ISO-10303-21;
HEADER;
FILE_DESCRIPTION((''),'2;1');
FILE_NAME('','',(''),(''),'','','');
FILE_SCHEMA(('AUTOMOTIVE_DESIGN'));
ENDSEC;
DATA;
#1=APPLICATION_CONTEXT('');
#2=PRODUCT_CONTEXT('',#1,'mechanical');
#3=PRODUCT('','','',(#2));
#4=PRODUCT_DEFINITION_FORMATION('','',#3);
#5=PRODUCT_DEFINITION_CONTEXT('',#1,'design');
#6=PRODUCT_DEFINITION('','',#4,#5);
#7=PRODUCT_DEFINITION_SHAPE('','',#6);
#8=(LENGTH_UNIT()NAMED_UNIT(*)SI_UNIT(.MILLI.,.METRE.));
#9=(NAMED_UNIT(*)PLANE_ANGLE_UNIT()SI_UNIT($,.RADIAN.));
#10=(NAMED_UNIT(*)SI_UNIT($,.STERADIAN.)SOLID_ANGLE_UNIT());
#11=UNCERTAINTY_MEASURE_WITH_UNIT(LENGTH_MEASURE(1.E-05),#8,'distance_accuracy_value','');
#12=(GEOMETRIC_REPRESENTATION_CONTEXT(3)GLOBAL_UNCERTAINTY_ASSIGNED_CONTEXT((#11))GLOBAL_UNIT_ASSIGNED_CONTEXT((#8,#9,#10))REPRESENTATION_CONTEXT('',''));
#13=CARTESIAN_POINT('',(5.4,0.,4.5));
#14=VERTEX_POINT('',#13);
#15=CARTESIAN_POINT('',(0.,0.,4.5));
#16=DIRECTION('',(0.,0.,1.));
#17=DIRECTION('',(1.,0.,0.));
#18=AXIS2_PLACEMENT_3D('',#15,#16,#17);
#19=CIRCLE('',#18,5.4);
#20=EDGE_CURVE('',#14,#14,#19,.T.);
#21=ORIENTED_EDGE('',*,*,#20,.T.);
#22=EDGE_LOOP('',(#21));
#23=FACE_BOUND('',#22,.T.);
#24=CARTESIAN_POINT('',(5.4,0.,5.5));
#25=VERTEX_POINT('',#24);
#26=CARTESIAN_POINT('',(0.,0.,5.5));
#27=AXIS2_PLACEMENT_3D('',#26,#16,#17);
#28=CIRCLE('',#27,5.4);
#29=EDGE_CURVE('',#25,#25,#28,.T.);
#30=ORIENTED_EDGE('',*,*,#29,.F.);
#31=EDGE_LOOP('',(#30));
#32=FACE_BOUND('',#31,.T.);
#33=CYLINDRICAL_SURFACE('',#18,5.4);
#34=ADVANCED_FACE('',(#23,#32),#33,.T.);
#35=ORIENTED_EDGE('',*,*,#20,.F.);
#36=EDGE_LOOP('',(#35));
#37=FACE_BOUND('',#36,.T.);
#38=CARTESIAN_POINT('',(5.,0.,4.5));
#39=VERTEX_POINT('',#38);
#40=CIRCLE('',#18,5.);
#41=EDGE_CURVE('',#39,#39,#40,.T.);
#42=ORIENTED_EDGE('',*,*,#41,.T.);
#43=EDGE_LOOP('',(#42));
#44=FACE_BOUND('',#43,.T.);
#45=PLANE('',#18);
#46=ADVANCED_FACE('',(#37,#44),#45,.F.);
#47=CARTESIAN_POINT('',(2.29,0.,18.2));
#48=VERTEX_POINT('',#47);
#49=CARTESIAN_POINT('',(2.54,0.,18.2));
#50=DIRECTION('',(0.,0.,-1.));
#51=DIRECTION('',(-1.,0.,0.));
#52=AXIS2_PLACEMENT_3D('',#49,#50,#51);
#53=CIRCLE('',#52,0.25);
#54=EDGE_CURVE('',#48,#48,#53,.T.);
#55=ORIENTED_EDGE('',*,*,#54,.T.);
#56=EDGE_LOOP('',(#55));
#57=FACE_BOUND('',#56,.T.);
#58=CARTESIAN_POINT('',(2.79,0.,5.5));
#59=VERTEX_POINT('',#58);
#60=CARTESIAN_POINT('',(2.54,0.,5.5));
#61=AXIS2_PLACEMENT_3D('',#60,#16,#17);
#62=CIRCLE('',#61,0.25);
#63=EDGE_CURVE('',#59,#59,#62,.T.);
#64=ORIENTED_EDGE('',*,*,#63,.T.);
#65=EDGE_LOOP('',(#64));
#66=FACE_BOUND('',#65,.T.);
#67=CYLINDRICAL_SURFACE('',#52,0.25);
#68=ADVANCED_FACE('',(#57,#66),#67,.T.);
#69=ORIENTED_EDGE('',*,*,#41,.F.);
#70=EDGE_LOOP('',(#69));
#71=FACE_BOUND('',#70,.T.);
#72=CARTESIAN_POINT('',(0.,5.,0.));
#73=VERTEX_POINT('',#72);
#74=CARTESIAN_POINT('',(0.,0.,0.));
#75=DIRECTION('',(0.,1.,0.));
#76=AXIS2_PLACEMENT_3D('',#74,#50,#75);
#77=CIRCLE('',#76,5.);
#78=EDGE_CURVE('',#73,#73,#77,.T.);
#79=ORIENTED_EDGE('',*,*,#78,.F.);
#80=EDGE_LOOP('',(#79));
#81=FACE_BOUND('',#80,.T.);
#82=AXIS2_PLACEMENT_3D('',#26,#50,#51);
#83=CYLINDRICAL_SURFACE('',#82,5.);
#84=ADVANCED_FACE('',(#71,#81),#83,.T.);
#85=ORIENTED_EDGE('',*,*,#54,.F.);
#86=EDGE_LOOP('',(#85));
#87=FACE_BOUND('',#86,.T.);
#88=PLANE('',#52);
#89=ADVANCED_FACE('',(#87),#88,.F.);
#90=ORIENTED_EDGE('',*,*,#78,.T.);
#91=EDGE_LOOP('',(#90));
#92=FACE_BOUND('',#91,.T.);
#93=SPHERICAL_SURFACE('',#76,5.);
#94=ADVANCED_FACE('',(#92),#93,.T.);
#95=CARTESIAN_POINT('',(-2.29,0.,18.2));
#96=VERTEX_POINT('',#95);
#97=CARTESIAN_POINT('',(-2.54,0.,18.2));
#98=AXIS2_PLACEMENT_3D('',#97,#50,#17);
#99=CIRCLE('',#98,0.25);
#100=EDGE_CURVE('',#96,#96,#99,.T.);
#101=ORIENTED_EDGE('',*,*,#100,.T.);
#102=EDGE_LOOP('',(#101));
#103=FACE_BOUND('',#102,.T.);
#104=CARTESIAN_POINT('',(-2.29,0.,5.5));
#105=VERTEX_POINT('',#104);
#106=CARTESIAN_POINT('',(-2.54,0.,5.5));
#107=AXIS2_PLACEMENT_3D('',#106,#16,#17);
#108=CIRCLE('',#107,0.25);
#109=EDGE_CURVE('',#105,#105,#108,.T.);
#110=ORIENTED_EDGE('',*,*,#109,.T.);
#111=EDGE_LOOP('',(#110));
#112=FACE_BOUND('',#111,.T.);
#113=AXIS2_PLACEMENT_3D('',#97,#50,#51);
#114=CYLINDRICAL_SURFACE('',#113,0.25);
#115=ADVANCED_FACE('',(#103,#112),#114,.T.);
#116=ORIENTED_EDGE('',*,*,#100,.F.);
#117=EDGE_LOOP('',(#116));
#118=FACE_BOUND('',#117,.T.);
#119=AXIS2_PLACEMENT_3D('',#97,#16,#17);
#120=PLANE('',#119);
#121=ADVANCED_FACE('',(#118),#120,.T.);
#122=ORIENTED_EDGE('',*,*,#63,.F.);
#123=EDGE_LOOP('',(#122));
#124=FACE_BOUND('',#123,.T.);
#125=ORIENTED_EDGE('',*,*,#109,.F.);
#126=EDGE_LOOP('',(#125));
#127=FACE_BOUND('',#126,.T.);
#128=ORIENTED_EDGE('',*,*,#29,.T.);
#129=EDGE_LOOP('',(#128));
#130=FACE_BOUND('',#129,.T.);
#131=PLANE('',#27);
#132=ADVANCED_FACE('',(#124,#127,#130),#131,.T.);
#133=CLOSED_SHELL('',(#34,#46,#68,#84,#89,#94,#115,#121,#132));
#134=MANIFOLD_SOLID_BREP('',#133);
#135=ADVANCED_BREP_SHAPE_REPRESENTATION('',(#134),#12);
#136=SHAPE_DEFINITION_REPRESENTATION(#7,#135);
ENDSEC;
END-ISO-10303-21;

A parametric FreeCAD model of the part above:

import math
import FreeCAD as App
import Part
import Sketcher
from FreeCAD import Vector
Q = App.Units.Quantity

doc = App.newDocument("Part")
body = doc.addObject("PartDesign::Body", "Body")

# Sketch on XY plane
sketch1 = doc.addObject("Sketcher::SketchObject", "Sketch")
body.addObject(sketch1)
sketch1.AttachmentSupport = (doc.XY_Plane, [""])
sketch1.MapMode = "FlatFace"
sketch1.addGeometry(Part.Circle(Vector(0, 0, 0), Vector(0, 0, 1), 5), False)
sketch1.addConstraint(Sketcher.Constraint("Coincident", 0, 3, -1, 1))
sketch1.addConstraint(Sketcher.Constraint("Diameter", 0, Q("10 mm")))
pad1 = doc.addObject("PartDesign::Pad", "Pad")
body.addObject(pad1)
pad1.Profile = sketch1
pad1.Length = 5.5

# Sketch on XY plane
sketch2 = doc.addObject("Sketcher::SketchObject", "Sketch001")
body.addObject(sketch2)
sketch2.AttachmentSupport = (doc.XY_Plane, [""])
sketch2.MapMode = "FlatFace"
sketch2.AttachmentOffset = App.Placement(Vector(0, 0, 5.5), App.Rotation())
sketch2.addGeometry(Part.Circle(Vector(0, 0, 0), Vector(0, 0, 1), 5.4), False)
sketch2.addConstraint(Sketcher.Constraint("Coincident", 0, 3, -1, 1))
sketch2.addConstraint(Sketcher.Constraint("Diameter", 0, Q("10.8 mm")))
pad2 = doc.addObject("PartDesign::Pad", "Pad001")
body.addObject(pad2)
pad2.Profile = sketch2
pad2.Length = 1
pad2.Reversed = True

# Sketch on XY plane
sketch3 = doc.addObject("Sketcher::SketchObject", "Sketch002")
body.addObject(sketch3)
sketch3.AttachmentSupport = (doc.XY_Plane, [""])
sketch3.MapMode = "FlatFace"
sketch3.AttachmentOffset = App.Placement(Vector(0, 0, 5.5), App.Rotation())
sketch3.addGeometry(Part.Circle(Vector(2.54, 0, 0), Vector(0, 0, 1), 0.25), False)
sketch3.addGeometry(Part.Circle(Vector(-2.54, 0, 0), Vector(0, 0, 1), 0.25), False)
sketch3.addConstraint(Sketcher.Constraint("Equal", 0, 1))
sketch3.addConstraint(Sketcher.Constraint("Symmetric", 0, 3, 1, 3, -1, 1))
sketch3.addConstraint(Sketcher.Constraint("PointOnObject", 0, 3, -1))
sketch3.addConstraint(Sketcher.Constraint("Diameter", 0, Q("0.5 mm")))
sketch3.addConstraint(Sketcher.Constraint("DistanceX", -1, 1, 0, 3, Q("2.54 mm")))
pad3 = doc.addObject("PartDesign::Pad", "Pad002")
body.addObject(pad3)
pad3.Profile = sketch3
pad3.Length = 12.7

# Sketch on YZ plane
sketch4 = doc.addObject("Sketcher::SketchObject", "Sketch003")
body.addObject(sketch4)
sketch4.AttachmentSupport = (doc.YZ_Plane, [""])
sketch4.MapMode = "FlatFace"
sketch4.addGeometry(Part.LineSegment(Vector(5, 0, 0), Vector(0, 0, 0)), False)
sketch4.addGeometry(Part.LineSegment(Vector(0, 0, 0), Vector(0, -5, 0)), False)
sketch4.addGeometry(Part.ArcOfCircle(Part.Circle(Vector(0, 0, 0), Vector(0, 0, 1), 5), math.radians(-90), math.radians(0)), False)
sketch4.addConstraint(Sketcher.Constraint("Coincident", 0, 2, 1, 1))
sketch4.addConstraint(Sketcher.Constraint("Coincident", 1, 2, 2, 1))
sketch4.addConstraint(Sketcher.Constraint("Coincident", 2, 2, 0, 1))
sketch4.addConstraint(Sketcher.Constraint("Horizontal", 0))
sketch4.addConstraint(Sketcher.Constraint("Vertical", 1))
sketch4.addConstraint(Sketcher.Constraint("Coincident", 2, 3, -1, 1))
sketch4.addConstraint(Sketcher.Constraint("Coincident", 0, 2, -1, 1))
sketch4.addConstraint(Sketcher.Constraint("Radius", 2, Q("5 mm")))
revolution = doc.addObject("PartDesign::Revolution", "Revolution")
body.addObject(revolution)
revolution.Profile = sketch4
revolution.ReferenceAxis = (sketch4, ["V_Axis"])
revolution.Angle = 360

doc.recompute()
